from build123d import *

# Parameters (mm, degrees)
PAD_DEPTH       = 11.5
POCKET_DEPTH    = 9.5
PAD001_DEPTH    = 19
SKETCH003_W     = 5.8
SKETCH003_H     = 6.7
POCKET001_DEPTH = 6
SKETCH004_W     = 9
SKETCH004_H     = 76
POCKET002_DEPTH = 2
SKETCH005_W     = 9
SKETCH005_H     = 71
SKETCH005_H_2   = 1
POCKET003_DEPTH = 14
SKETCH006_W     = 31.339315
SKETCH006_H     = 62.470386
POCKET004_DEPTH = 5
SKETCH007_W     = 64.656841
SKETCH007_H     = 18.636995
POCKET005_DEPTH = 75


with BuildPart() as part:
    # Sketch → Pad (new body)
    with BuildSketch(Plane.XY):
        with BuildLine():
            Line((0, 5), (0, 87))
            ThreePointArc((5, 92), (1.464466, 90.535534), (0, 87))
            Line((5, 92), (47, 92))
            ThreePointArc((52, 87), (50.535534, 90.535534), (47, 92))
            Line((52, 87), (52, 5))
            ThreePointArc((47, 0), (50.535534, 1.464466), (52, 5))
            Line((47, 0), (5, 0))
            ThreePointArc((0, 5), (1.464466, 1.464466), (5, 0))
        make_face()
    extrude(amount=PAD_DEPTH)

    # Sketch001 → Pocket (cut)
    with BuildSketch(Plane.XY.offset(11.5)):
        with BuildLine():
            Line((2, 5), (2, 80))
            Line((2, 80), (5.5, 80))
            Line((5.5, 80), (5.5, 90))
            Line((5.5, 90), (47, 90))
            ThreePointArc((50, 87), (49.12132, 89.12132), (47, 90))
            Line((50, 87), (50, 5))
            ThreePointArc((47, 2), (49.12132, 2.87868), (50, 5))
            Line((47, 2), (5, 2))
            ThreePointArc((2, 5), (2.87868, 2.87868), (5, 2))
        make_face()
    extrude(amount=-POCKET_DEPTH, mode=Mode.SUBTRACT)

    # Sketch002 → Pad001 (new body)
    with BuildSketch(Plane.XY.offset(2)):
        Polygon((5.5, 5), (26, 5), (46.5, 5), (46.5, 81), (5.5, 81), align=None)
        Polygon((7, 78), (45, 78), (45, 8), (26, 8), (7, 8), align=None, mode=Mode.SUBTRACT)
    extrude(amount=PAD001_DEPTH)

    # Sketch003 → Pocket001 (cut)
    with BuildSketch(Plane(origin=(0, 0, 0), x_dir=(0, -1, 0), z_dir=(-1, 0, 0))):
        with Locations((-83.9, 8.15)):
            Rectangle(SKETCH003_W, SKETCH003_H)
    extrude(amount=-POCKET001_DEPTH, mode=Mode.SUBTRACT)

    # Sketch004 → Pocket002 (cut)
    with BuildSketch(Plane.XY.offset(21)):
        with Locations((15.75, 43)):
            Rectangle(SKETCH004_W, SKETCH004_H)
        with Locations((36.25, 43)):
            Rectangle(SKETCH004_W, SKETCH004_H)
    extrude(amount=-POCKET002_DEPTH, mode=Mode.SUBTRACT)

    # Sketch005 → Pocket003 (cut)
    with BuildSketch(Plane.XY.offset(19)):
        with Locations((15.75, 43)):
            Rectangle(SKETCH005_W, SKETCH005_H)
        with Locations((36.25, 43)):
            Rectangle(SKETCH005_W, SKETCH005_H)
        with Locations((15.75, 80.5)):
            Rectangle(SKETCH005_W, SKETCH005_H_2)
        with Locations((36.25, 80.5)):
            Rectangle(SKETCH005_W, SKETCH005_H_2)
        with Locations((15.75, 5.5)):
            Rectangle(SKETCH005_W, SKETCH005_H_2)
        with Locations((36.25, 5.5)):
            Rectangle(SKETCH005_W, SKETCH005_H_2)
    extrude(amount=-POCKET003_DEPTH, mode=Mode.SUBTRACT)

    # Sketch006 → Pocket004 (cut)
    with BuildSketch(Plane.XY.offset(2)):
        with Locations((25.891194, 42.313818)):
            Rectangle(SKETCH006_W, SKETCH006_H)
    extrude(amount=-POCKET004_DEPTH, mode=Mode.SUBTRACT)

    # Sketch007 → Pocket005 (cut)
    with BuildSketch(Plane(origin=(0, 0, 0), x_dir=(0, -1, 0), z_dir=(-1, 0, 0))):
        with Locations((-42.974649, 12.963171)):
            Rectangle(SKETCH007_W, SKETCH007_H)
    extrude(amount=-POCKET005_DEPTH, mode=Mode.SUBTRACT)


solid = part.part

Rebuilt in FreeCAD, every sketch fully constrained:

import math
import FreeCAD as App
import Part
import Sketcher

V = App.Vector
Q = App.Units.Quantity


def add_polygon(sketch, points):
    """Adds a closed chain of lines whose ends are joined by coincident constraints."""
    first, n = sketch.GeometryCount, len(points)
    for a, b in zip(points, points[1:] + points[:1]):
        sketch.addGeometry(Part.LineSegment(App.Vector(*a, 0), App.Vector(*b, 0)), False)
    for i in range(n):
        sketch.addConstraint(Sketcher.Constraint("Coincident", first + i, 2, first + (i + 1) % n, 1))

doc = App.newDocument("Part")
params = doc.addObject("Spreadsheet::Sheet", "Params")
for row, (alias, value) in enumerate([
    ("sketch1_radius", "5 mm"),
    ("sketch1_width", "42 mm"),
    ("sketch1_height", "82 mm"),
    ("pad1_length", "11.5 mm"),
    ("sketch2_radius", "3.000001 mm"),
    ("sketch2_width", "42 mm"),
    ("sketch2_height", "75 mm"),
    ("sketch2_height2", "82 mm"),
    ("sketch2_width2", "41.5 mm"),
    ("pocket1_length", "9.5 mm"),
    ("sketch3_width", "41 mm"),
    ("sketch3_width2", "38 mm"),
    ("sketch3_height", "76 mm"),
    ("sketch3_height2", "70 mm"),
    ("pad2_length", "19 mm"),
    ("sketch4_width", "5.8 mm"),
    ("sketch4_height", "6.7 mm"),
    ("pocket2_length", "6 mm"),
    ("sketch5_width", "9 mm"),
    ("sketch5_height", "76 mm"),
    ("pocket3_length", "2 mm"),
    ("sketch6_width", "9 mm"),
    ("sketch6_height", "71 mm"),
    ("sketch6_height2", "1 mm"),
    ("pocket4_length", "14 mm"),
    ("pocket5_length", "5 mm"),
    ("pocket6_length", "75 mm"),
], start=1):
    params.set(f"A{row}", alias)
    params.set(f"B{row}", "=" + value)
    params.setAlias(f"B{row}", alias)

body = doc.addObject("PartDesign::Body", "Body")

sketch1 = body.newObject("Sketcher::SketchObject", "Sketch")
sketch1.AttachmentSupport = (doc.getObject("XY_Plane"), [""])
sketch1.MapMode = "FlatFace"
sketch1.addGeometry(Part.LineSegment(V(0, 87, 0), V(0, 5, 0)), False)
sketch1.addGeometry(Part.ArcOfCircle(Part.Circle(V(5, 5, 0), V(0, 0, 1), 5), math.radians(180), math.radians(270)), False)
sketch1.addGeometry(Part.LineSegment(V(5, 0, 0), V(47, 0, 0)), False)
sketch1.addGeometry(Part.ArcOfCircle(Part.Circle(V(47, 5, 0), V(0, 0, 1), 5), math.radians(-90), math.radians(0)), False)
sketch1.addGeometry(Part.LineSegment(V(52, 5, 0), V(52, 87, 0)), False)
sketch1.addGeometry(Part.ArcOfCircle(Part.Circle(V(47, 87, 0), V(0, 0, 1), 5), math.radians(0), math.radians(90)), False)
sketch1.addGeometry(Part.LineSegment(V(47, 92, 0), V(5, 92, 0)), False)
sketch1.addGeometry(Part.ArcOfCircle(Part.Circle(V(5, 87, 0), V(0, 0, 1), 5), math.radians(90), math.radians(180)), False)
sketch1.addConstraint(Sketcher.Constraint("Tangent", 0, 2, 1, 1))
sketch1.addConstraint(Sketcher.Constraint("Tangent", 1, 2, 2, 1))
sketch1.addConstraint(Sketcher.Constraint("Tangent", 2, 2, 3, 1))
sketch1.addConstraint(Sketcher.Constraint("Tangent", 3, 2, 4, 1))
sketch1.addConstraint(Sketcher.Constraint("Tangent", 4, 2, 5, 1))
sketch1.addConstraint(Sketcher.Constraint("Tangent", 5, 2, 6, 1))
sketch1.addConstraint(Sketcher.Constraint("Tangent", 6, 2, 7, 1))
sketch1.addConstraint(Sketcher.Constraint("Tangent", 7, 2, 0, 1))
sketch1.addConstraint(Sketcher.Constraint("Vertical", 0))
sketch1.addConstraint(Sketcher.Constraint("Horizontal", 2))
sketch1.addConstraint(Sketcher.Constraint("Vertical", 4))
sketch1.addConstraint(Sketcher.Constraint("Horizontal", 6))
sketch1.addConstraint(Sketcher.Constraint("Equal", 1, 3))
sketch1.addConstraint(Sketcher.Constraint("Equal", 3, 5))
sketch1.addConstraint(Sketcher.Constraint("Equal", 5, 7))
sketch1.addConstraint(Sketcher.Constraint("PointOnObject", 0, 2, -2))
sketch1.addConstraint(Sketcher.Constraint("PointOnObject", 1, 2, -1))
sketch1.addConstraint(Sketcher.Constraint("Radius", 1, Q("5 mm")))
sketch1.addConstraint(Sketcher.Constraint("DistanceX", 2, 1, 2, 2, Q("42 mm")))
sketch1.addConstraint(Sketcher.Constraint("DistanceY", 0, 2, 0, 1, Q("82 mm")))
sketch1.setExpression("Constraints[17]", "Params.sketch1_radius")
sketch1.setExpression("Constraints[18]", "Params.sketch1_width")
sketch1.setExpression("Constraints[19]", "Params.sketch1_height")
pad1 = body.newObject("PartDesign::Pad", "Pad")
pad1.Profile = sketch1
pad1.setExpression("Length", "Params.pad1_length")

sketch2 = body.newObject("Sketcher::SketchObject", "Sketch001")
sketch2.AttachmentSupport = (doc.getObject("XY_Plane"), [""])
sketch2.MapMode = "FlatFace"
sketch2.AttachmentOffset = App.Placement(V(0, 0, 11.5), App.Rotation())
sketch2.addGeometry(Part.LineSegment(V(2, 80, 0), V(2, 5, 0)), False)
sketch2.addGeometry(Part.ArcOfCircle(Part.Circle(V(5, 5, 0), V(0, 0, 1), 3), math.radians(-180), math.radians(-90)), False)
sketch2.addGeometry(Part.LineSegment(V(5, 2, 0), V(47, 2, 0)), False)
sketch2.addGeometry(Part.ArcOfCircle(Part.Circle(V(47, 5, 0), V(0, 0, 1), 3), math.radians(-90), math.radians(0)), False)
sketch2.addGeometry(Part.LineSegment(V(50, 5, 0), V(50, 87, 0)), False)
sketch2.addGeometry(Part.ArcOfCircle(Part.Circle(V(47, 87, 0), V(0, 0, 1), 3), math.radians(0), math.radians(90)), False)
sketch2.addGeometry(Part.LineSegment(V(47, 90, 0), V(5.5, 90, 0)), False)
sketch2.addGeometry(Part.LineSegment(V(5.5, 90, 0), V(5.5, 80, 0)), False)
sketch2.addGeometry(Part.LineSegment(V(5.5, 80, 0), V(2, 80, 0)), False)
sketch2.addConstraint(Sketcher.Constraint("Tangent", 0, 2, 1, 1))
sketch2.addConstraint(Sketcher.Constraint("Tangent", 1, 2, 2, 1))
sketch2.addConstraint(Sketcher.Constraint("Tangent", 2, 2, 3, 1))
sketch2.addConstraint(Sketcher.Constraint("Tangent", 3, 2, 4, 1))
sketch2.addConstraint(Sketcher.Constraint("Tangent", 4, 2, 5, 1))
sketch2.addConstraint(Sketcher.Constraint("Tangent", 5, 2, 6, 1))
sketch2.addConstraint(Sketcher.Constraint("Coincident", 6, 2, 7, 1))
sketch2.addConstraint(Sketcher.Constraint("Coincident", 7, 2, 8, 1))
sketch2.addConstraint(Sketcher.Constraint("Coincident", 8, 2, 0, 1))
sketch2.addConstraint(Sketcher.Constraint("Vertical", 0))
sketch2.addConstraint(Sketcher.Constraint("Horizontal", 2))
sketch2.addConstraint(Sketcher.Constraint("Vertical", 4))
sketch2.addConstraint(Sketcher.Constraint("Horizontal", 6))
sketch2.addConstraint(Sketcher.Constraint("Vertical", 7))
sketch2.addConstraint(Sketcher.Constraint("Horizontal", 8))
sketch2.addConstraint(Sketcher.Constraint("Equal", 1, 3))
sketch2.addConstraint(Sketcher.Constraint("Equal", 3, 5))
sketch2.addConstraint(Sketcher.Constraint("Radius", 1, Q("3.000001 mm")))
sketch2.addConstraint(Sketcher.Constraint("DistanceX", 2, 1, 2, 2, Q("42 mm")))
sketch2.addConstraint(Sketcher.Constraint("DistanceY", 0, 2, 0, 1, Q("75 mm")))
sketch2.addConstraint(Sketcher.Constraint("DistanceY", 4, 1, 4, 2, Q("82 mm")))
sketch2.addConstraint(Sketcher.Constraint("DistanceX", 6, 2, 6, 1, Q("41.5 mm")))
sketch2.addConstraint(Sketcher.Constraint("DistanceX", -1, 1, 1, 3, Q("5.000001 mm")))
sketch2.addConstraint(Sketcher.Constraint("DistanceY", -1, 1, 1, 3, Q("5.000001 mm")))
sketch2.setExpression("Constraints[17]", "Params.sketch2_radius")
sketch2.setExpression("Constraints[18]", "Params.sketch2_width")
sketch2.setExpression("Constraints[19]", "Params.sketch2_height")
sketch2.setExpression("Constraints[20]", "Params.sketch2_height2")
sketch2.setExpression("Constraints[21]", "Params.sketch2_width2")
pocket1 = body.newObject("PartDesign::Pocket", "Pocket")
pocket1.Profile = sketch2
pocket1.setExpression("Length", "Params.pocket1_length")

sketch3 = body.newObject("Sketcher::SketchObject", "Sketch002")
sketch3.AttachmentSupport = (doc.getObject("XY_Plane"), [""])
sketch3.MapMode = "FlatFace"
sketch3.AttachmentOffset = App.Placement(V(0, 0, 2), App.Rotation())
add_polygon(sketch3, [(6, 5), (46, 5), (46, 81), (6, 81)])
add_polygon(sketch3, [(7, 8), (7, 78), (45, 78), (45, 8)])
sketch3.addConstraint(Sketcher.Constraint("Horizontal", 0))
sketch3.addConstraint(Sketcher.Constraint("Vertical", 1))
sketch3.addConstraint(Sketcher.Constraint("Horizontal", 2))
sketch3.addConstraint(Sketcher.Constraint("Vertical", 3))
sketch3.addConstraint(Sketcher.Constraint("Vertical", 4))
sketch3.addConstraint(Sketcher.Constraint("Horizontal", 5))
sketch3.addConstraint(Sketcher.Constraint("Vertical", 6))
sketch3.addConstraint(Sketcher.Constraint("Horizontal", 7))
sketch3.addConstraint(Sketcher.Constraint("DistanceX", 0, 1, 0, 2, Q("41 mm")))
sketch3.addConstraint(Sketcher.Constraint("DistanceX", 5, 1, 5, 2, Q("38 mm")))
sketch3.addConstraint(Sketcher.Constraint("DistanceY", 1, 1, 1, 2, Q("76 mm")))
sketch3.addConstraint(Sketcher.Constraint("DistanceY", 4, 1, 4, 2, Q("70 mm")))
sketch3.addConstraint(Sketcher.Constraint("DistanceY", -1, 1, 0, 2, Q("5 mm")))
sketch3.addConstraint(Sketcher.Constraint("DistanceX", -1, 1, 4, 2, Q("7 mm")))
sketch3.addConstraint(Sketcher.Constraint("DistanceY", -1, 1, 4, 2, Q("78 mm")))
sketch3.addConstraint(Sketcher.Constraint("DistanceX", -1, 1, 0, 2, Q("46.5 mm")))
sketch3.setExpression("Constraints[16]", "Params.sketch3_width")
sketch3.setExpression("Constraints[17]", "Params.sketch3_width2")
sketch3.setExpression("Constraints[18]", "Params.sketch3_height")
sketch3.setExpression("Constraints[19]", "Params.sketch3_height2")
pad2 = body.newObject("PartDesign::Pad", "Pad001")
pad2.Profile = sketch3
pad2.setExpression("Length", "Params.pad2_length")

sketch4 = body.newObject("Sketcher::SketchObject", "Sketch003")
sketch4.AttachmentSupport = (doc.getObject("YZ_Plane"), [""])
sketch4.MapMode = "FlatFace"
add_polygon(sketch4, [(87, 12), (87, 5), (81, 5), (81, 12)])
sketch4.addConstraint(Sketcher.Constraint("Vertical", 0))
sketch4.addConstraint(Sketcher.Constraint("Horizontal", 1))
sketch4.addConstraint(Sketcher.Constraint("Vertical", 2))
sketch4.addConstraint(Sketcher.Constraint("Horizontal", 3))
sketch4.addConstraint(Sketcher.Constraint("DistanceX", 1, 2, 1, 1, Q("5.8 mm")))
sketch4.addConstraint(Sketcher.Constraint("DistanceY", 0, 2, 0, 1, Q("6.7 mm")))
sketch4.addConstraint(Sketcher.Constraint("DistanceX", -1, 1, 1, 2, Q("81 mm")))
sketch4.addConstraint(Sketcher.Constraint("DistanceY", -1, 1, 0, 2, Q("4.8 mm")))
sketch4.setExpression("Constraints[8]", "Params.sketch4_width")
sketch4.setExpression("Constraints[9]", "Params.sketch4_height")
pocket2 = body.newObject("PartDesign::Pocket", "Pocket001")
pocket2.Profile = sketch4
pocket2.setExpression("Length", "Params.pocket2_length")
pocket2.Reversed = True

sketch5 = body.newObject("Sketcher::SketchObject", "Sketch004")
sketch5.AttachmentSupport = (doc.getObject("XY_Plane"), [""])
sketch5.MapMode = "FlatFace"
sketch5.AttachmentOffset = App.Placement(V(0, 0, 21), App.Rotation())
add_polygon(sketch5, [(11, 81), (11, 5), (20, 5), (20, 81)])
add_polygon(sketch5, [(32, 81), (32, 5), (41, 5), (41, 81)])
sketch5.addConstraint(Sketcher.Constraint("Vertical", 0))
sketch5.addConstraint(Sketcher.Constraint("Horizontal", 1))
sketch5.addConstraint(Sketcher.Constraint("Vertical", 2))
sketch5.addConstraint(Sketcher.Constraint("Horizontal", 3))
sketch5.addConstraint(Sketcher.Constraint("Vertical", 4))
sketch5.addConstraint(Sketcher.Constraint("Horizontal", 5))
sketch5.addConstraint(Sketcher.Constraint("Vertical", 6))
sketch5.addConstraint(Sketcher.Constraint("Horizontal", 7))
sketch5.addConstraint(Sketcher.Constraint("Horizontal", 1, 2, 4, 2))
sketch5.addConstraint(Sketcher.Constraint("Horizontal", 3, 2, 6, 2))
sketch5.addConstraint(Sketcher.Constraint("Equal", 3, 5))
sketch5.addConstraint(Sketcher.Constraint("DistanceX", 1, 1, 1, 2, Q("9 mm")))
sketch5.addConstraint(Sketcher.Constraint("DistanceY", 0, 2, 0, 1, Q("76 mm")))
sketch5.addConstraint(Sketcher.Constraint("DistanceY", -1, 1, 0, 2, Q("5 mm")))
sketch5.addConstraint(Sketcher.Constraint("DistanceX", 1, 2, 4, 2, Q("11.5 mm")))
sketch5.addConstraint(Sketcher.Constraint("DistanceX", -1, 1, 0, 2, Q("11.25 mm")))
sketch5.setExpression("Constraints[19]", "Params.sketch5_width")
sketch5.setExpression("Constraints[20]", "Params.sketch5_height")
pocket3 = body.newObject("PartDesign::Pocket", "Pocket002")
pocket3.Profile = sketch5
pocket3.setExpression("Length", "Params.pocket3_length")

sketch6 = body.newObject("Sketcher::SketchObject", "Sketch005")
sketch6.AttachmentSupport = (doc.getObject("XY_Plane"), [""])
sketch6.MapMode = "FlatFace"
sketch6.AttachmentOffset = App.Placement(V(0, 0, 19), App.Rotation())
add_polygon(sketch6, [(11.2, 78.5), (11.2, 7.5), (20.2, 7.5), (20.2, 78.5)])
add_polygon(sketch6, [(31.8, 78.5), (31.8, 7.5), (40.8, 7.5), (40.8, 78.5)])
add_polygon(sketch6, [(11.2, 81), (11.2, 80), (20.2, 80), (20.2, 81)])
add_polygon(sketch6, [(31.8, 81), (31.8, 80), (40.8, 80), (40.8, 81)])
add_polygon(sketch6, [(11.2, 6), (11.2, 5), (20.2, 5), (20.2, 6)])
add_polygon(sketch6, [(31.8, 6), (31.8, 5), (40.8, 5), (40.8, 6)])
sketch6.addConstraint(Sketcher.Constraint("Vertical", 0))
sketch6.addConstraint(Sketcher.Constraint("Horizontal", 1))
sketch6.addConstraint(Sketcher.Constraint("Vertical", 2))
sketch6.addConstraint(Sketcher.Constraint("Horizontal", 3))
sketch6.addConstraint(Sketcher.Constraint("Vertical", 4))
sketch6.addConstraint(Sketcher.Constraint("Horizontal", 5))
sketch6.addConstraint(Sketcher.Constraint("Vertical", 6))
sketch6.addConstraint(Sketcher.Constraint("Horizontal", 7))
sketch6.addConstraint(Sketcher.Constraint("Vertical", 8))
sketch6.addConstraint(Sketcher.Constraint("Horizontal", 9))
sketch6.addConstraint(Sketcher.Constraint("Vertical", 10))
sketch6.addConstraint(Sketcher.Constraint("Horizontal", 11))
sketch6.addConstraint(Sketcher.Constraint("Vertical", 12))
sketch6.addConstraint(Sketcher.Constraint("Horizontal", 13))
sketch6.addConstraint(Sketcher.Constraint("Vertical", 14))
sketch6.addConstraint(Sketcher.Constraint("Horizontal", 15))
sketch6.addConstraint(Sketcher.Constraint("Vertical", 16))
sketch6.addConstraint(Sketcher.Constraint("Horizontal", 17))
sketch6.addConstraint(Sketcher.Constraint("Vertical", 18))
sketch6.addConstraint(Sketcher.Constraint("Horizontal", 19))
sketch6.addConstraint(Sketcher.Constraint("Vertical", 20))
sketch6.addConstraint(Sketcher.Constraint("Horizontal", 21))
sketch6.addConstraint(Sketcher.Constraint("Vertical", 22))
sketch6.addConstraint(Sketcher.Constraint("Horizontal", 23))
sketch6.addConstraint(Sketcher.Constraint("Horizontal", 1, 2, 4, 2))
sketch6.addConstraint(Sketcher.Constraint("Horizontal", 3, 2, 6, 2))
sketch6.addConstraint(Sketcher.Constraint("Horizontal", 9, 2, 12, 2))
sketch6.addConstraint(Sketcher.Constraint("Horizontal", 11, 2, 14, 2))
sketch6.addConstraint(Sketcher.Constraint("Horizontal", 17, 2, 20, 2))
sketch6.addConstraint(Sketcher.Constraint("Horizontal", 19, 2, 22, 2))
sketch6.addConstraint(Sketcher.Constraint("Vertical", 3, 2, 8, 2))
sketch6.addConstraint(Sketcher.Constraint("Vertical", 2, 2, 9, 2))
sketch6.addConstraint(Sketcher.Constraint("Vertical", 7, 2, 12, 2))
sketch6.addConstraint(Sketcher.Constraint("Vertical", 6, 2, 13, 2))
sketch6.addConstraint(Sketcher.Constraint("Vertical", 11, 2, 16, 2))
sketch6.addConstraint(Sketcher.Constraint("Vertical", 10, 2, 17, 2))
sketch6.addConstraint(Sketcher.Constraint("Vertical", 15, 2, 20, 2))
sketch6.addConstraint(Sketcher.Constraint("Vertical", 14, 2, 21, 2))
sketch6.addConstraint(Sketcher.Constraint("Equal", 3, 5))
sketch6.addConstraint(Sketcher.Constraint("Equal", 14, 16))
sketch6.addConstraint(Sketcher.Constraint("DistanceX", 1, 1, 1, 2, Q("9 mm")))
sketch6.addConstraint(Sketcher.Constraint("DistanceY", 0, 2, 0, 1, Q("71 mm")))
sketch6.addConstraint(Sketcher.Constraint("DistanceY", 8, 2, 8, 1, Q("1 mm")))
sketch6.addConstraint(Sketcher.Constraint("DistanceY", -1, 1, 8, 2, Q("80 mm")))
sketch6.addConstraint(Sketcher.Constraint("DistanceY", -1, 1, 16, 2, Q("5 mm")))
sketch6.addConstraint(Sketcher.Constraint("DistanceY", -1, 1, 0, 2, Q("7.5 mm")))
sketch6.addConstraint(Sketcher.Constraint("DistanceX", 1, 2, 4, 2, Q("11.5 mm")))
sketch6.addConstraint(Sketcher.Constraint("DistanceX", -1, 1, 0, 2, Q("11.25 mm")))
sketch6.setExpression("Constraints[64]", "Params.sketch6_width")
sketch6.setExpression("Constraints[65]", "Params.sketch6_height")
sketch6.setExpression("Constraints[66]", "Params.sketch6_height2")
pocket4 = body.newObject("PartDesign::Pocket", "Pocket003")
pocket4.Profile = sketch6
pocket4.setExpression("Length", "Params.pocket4_length")

sketch7 = body.newObject("Sketcher::SketchObject", "Sketch006")
sketch7.AttachmentSupport = (doc.getObject("XY_Plane"), [""])
sketch7.MapMode = "FlatFace"
sketch7.AttachmentOffset = App.Placement(V(0, 0, 2), App.Rotation())
add_polygon(sketch7, [(10, 74), (10, 11), (42, 11), (42, 74)])
sketch7.addConstraint(Sketcher.Constraint("Vertical", 0))
sketch7.addConstraint(Sketcher.Constraint("Horizontal", 1))
sketch7.addConstraint(Sketcher.Constraint("Vertical", 2))
sketch7.addConstraint(Sketcher.Constraint("Horizontal", 3))
sketch7.addConstraint(Sketcher.Constraint("DistanceX", 1, 1, 1, 2, Q("31.339315 mm")))
sketch7.addConstraint(Sketcher.Constraint("DistanceY", 0, 2, 0, 1, Q("62.470386 mm")))
sketch7.addConstraint(Sketcher.Constraint("DistanceX", -1, 1, 1, 2, Q("41.560851 mm")))
sketch7.addConstraint(Sketcher.Constraint("DistanceY", -1, 1, 2, 2, Q("73.549011 mm")))
pocket5 = body.newObject("PartDesign::Pocket", "Pocket004")
pocket5.Profile = sketch7
pocket5.setExpression("Length", "Params.pocket5_length")

sketch8 = body.newObject("Sketcher::SketchObject", "Sketch007")
sketch8.AttachmentSupport = (doc.getObject("YZ_Plane"), [""])
sketch8.MapMode = "FlatFace"
add_polygon(sketch8, [(75, 22), (75, 4), (11, 4), (11, 22)])
sketch8.addConstraint(Sketcher.Constraint("Vertical", 0))
sketch8.addConstraint(Sketcher.Constraint("Horizontal", 1))
sketch8.addConstraint(Sketcher.Constraint("Vertical", 2))
sketch8.addConstraint(Sketcher.Constraint("Horizontal", 3))
sketch8.addConstraint(Sketcher.Constraint("DistanceX", 1, 2, 1, 1, Q("64.656841 mm")))
sketch8.addConstraint(Sketcher.Constraint("DistanceY", 0, 2, 0, 1, Q("18.636995 mm")))
sketch8.addConstraint(Sketcher.Constraint("DistanceX", -1, 1, 0, 2, Q("75.30307 mm")))
sketch8.addConstraint(Sketcher.Constraint("DistanceY", -1, 1, 2, 2, Q("22.281668 mm")))
pocket6 = body.newObject("PartDesign::Pocket", "Pocket005")
pocket6.Profile = sketch8
pocket6.setExpression("Length", "Params.pocket6_length")
pocket6.Reversed = True

doc.recompute()
